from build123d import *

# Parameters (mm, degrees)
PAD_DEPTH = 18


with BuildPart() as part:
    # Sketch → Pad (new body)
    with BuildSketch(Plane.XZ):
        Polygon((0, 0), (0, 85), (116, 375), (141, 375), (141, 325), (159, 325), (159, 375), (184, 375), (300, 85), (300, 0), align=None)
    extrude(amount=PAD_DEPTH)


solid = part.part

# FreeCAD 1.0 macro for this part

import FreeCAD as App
import Part
import Sketcher
from FreeCAD import Vector
Q = App.Units.Quantity


def add_polygon(sketch, points):
    """Adds a closed chain of lines whose ends are joined by coincident constraints."""
    first, n = sketch.GeometryCount, len(points)
    for a, b in zip(points, points[1:] + points[:1]):
        sketch.addGeometry(Part.LineSegment(App.Vector(*a, 0), App.Vector(*b, 0)), False)
    for i in range(n):
        sketch.addConstraint(Sketcher.Constraint("Coincident", first + i, 2, first + (i + 1) % n, 1))

doc = App.newDocument("Part")
body = doc.addObject("PartDesign::Body", "Body")

# Sketch on XZ plane
sketch1 = body.newObject("Sketcher::SketchObject", "Sketch")
sketch1.AttachmentSupport = (doc.getObject("XZ_Plane"), [""])
sketch1.MapMode = "FlatFace"
add_polygon(sketch1, [(0, 85), (0, 0), (300, 0), (300, 85), (184, 375), (159, 375), (159, 325), (141, 325), (141, 375), (116, 375)])  # lines 0-9
sketch1.addConstraint([
    Sketcher.Constraint("Vertical", 0),
    Sketcher.Constraint("Horizontal", 1),
    Sketcher.Constraint("Vertical", 2),
    Sketcher.Constraint("Horizontal", 4),
    Sketcher.Constraint("Vertical", 5),
    Sketcher.Constraint("Horizontal", 6),
    Sketcher.Constraint("Vertical", 7),
    Sketcher.Constraint("Horizontal", 8),
    Sketcher.Constraint("Coincident", 0, 2, -1, 1),
    Sketcher.Constraint("Horizontal", 4, 2, 7, 2),
    Sketcher.Constraint("Horizontal", 2, 2, 9, 2),
    Sketcher.Constraint("Equal", 4, 8),
    Sketcher.Constraint("Equal", 3, 9),
    Sketcher.Constraint("DistanceX", 1, 1, 1, 2, Q("300 mm")),
    Sketcher.Constraint("DistanceX", 4, 2, 4, 1, Q("25 mm")),
    Sketcher.Constraint("DistanceX", 6, 2, 6, 1, Q("18 mm")),
    Sketcher.Constraint("DistanceY", 0, 2, 0, 1, Q("85 mm")),
    Sketcher.Constraint("DistanceY", 5, 2, 5, 1, Q("50 mm")),
    Sketcher.Constraint("DistanceY", -1, 1, 3, 2, Q("375 mm")),
])
pad1 = body.newObject("PartDesign::Pad", "Pad")
pad1.Profile = sketch1
pad1.Length = 18

doc.recompute()
